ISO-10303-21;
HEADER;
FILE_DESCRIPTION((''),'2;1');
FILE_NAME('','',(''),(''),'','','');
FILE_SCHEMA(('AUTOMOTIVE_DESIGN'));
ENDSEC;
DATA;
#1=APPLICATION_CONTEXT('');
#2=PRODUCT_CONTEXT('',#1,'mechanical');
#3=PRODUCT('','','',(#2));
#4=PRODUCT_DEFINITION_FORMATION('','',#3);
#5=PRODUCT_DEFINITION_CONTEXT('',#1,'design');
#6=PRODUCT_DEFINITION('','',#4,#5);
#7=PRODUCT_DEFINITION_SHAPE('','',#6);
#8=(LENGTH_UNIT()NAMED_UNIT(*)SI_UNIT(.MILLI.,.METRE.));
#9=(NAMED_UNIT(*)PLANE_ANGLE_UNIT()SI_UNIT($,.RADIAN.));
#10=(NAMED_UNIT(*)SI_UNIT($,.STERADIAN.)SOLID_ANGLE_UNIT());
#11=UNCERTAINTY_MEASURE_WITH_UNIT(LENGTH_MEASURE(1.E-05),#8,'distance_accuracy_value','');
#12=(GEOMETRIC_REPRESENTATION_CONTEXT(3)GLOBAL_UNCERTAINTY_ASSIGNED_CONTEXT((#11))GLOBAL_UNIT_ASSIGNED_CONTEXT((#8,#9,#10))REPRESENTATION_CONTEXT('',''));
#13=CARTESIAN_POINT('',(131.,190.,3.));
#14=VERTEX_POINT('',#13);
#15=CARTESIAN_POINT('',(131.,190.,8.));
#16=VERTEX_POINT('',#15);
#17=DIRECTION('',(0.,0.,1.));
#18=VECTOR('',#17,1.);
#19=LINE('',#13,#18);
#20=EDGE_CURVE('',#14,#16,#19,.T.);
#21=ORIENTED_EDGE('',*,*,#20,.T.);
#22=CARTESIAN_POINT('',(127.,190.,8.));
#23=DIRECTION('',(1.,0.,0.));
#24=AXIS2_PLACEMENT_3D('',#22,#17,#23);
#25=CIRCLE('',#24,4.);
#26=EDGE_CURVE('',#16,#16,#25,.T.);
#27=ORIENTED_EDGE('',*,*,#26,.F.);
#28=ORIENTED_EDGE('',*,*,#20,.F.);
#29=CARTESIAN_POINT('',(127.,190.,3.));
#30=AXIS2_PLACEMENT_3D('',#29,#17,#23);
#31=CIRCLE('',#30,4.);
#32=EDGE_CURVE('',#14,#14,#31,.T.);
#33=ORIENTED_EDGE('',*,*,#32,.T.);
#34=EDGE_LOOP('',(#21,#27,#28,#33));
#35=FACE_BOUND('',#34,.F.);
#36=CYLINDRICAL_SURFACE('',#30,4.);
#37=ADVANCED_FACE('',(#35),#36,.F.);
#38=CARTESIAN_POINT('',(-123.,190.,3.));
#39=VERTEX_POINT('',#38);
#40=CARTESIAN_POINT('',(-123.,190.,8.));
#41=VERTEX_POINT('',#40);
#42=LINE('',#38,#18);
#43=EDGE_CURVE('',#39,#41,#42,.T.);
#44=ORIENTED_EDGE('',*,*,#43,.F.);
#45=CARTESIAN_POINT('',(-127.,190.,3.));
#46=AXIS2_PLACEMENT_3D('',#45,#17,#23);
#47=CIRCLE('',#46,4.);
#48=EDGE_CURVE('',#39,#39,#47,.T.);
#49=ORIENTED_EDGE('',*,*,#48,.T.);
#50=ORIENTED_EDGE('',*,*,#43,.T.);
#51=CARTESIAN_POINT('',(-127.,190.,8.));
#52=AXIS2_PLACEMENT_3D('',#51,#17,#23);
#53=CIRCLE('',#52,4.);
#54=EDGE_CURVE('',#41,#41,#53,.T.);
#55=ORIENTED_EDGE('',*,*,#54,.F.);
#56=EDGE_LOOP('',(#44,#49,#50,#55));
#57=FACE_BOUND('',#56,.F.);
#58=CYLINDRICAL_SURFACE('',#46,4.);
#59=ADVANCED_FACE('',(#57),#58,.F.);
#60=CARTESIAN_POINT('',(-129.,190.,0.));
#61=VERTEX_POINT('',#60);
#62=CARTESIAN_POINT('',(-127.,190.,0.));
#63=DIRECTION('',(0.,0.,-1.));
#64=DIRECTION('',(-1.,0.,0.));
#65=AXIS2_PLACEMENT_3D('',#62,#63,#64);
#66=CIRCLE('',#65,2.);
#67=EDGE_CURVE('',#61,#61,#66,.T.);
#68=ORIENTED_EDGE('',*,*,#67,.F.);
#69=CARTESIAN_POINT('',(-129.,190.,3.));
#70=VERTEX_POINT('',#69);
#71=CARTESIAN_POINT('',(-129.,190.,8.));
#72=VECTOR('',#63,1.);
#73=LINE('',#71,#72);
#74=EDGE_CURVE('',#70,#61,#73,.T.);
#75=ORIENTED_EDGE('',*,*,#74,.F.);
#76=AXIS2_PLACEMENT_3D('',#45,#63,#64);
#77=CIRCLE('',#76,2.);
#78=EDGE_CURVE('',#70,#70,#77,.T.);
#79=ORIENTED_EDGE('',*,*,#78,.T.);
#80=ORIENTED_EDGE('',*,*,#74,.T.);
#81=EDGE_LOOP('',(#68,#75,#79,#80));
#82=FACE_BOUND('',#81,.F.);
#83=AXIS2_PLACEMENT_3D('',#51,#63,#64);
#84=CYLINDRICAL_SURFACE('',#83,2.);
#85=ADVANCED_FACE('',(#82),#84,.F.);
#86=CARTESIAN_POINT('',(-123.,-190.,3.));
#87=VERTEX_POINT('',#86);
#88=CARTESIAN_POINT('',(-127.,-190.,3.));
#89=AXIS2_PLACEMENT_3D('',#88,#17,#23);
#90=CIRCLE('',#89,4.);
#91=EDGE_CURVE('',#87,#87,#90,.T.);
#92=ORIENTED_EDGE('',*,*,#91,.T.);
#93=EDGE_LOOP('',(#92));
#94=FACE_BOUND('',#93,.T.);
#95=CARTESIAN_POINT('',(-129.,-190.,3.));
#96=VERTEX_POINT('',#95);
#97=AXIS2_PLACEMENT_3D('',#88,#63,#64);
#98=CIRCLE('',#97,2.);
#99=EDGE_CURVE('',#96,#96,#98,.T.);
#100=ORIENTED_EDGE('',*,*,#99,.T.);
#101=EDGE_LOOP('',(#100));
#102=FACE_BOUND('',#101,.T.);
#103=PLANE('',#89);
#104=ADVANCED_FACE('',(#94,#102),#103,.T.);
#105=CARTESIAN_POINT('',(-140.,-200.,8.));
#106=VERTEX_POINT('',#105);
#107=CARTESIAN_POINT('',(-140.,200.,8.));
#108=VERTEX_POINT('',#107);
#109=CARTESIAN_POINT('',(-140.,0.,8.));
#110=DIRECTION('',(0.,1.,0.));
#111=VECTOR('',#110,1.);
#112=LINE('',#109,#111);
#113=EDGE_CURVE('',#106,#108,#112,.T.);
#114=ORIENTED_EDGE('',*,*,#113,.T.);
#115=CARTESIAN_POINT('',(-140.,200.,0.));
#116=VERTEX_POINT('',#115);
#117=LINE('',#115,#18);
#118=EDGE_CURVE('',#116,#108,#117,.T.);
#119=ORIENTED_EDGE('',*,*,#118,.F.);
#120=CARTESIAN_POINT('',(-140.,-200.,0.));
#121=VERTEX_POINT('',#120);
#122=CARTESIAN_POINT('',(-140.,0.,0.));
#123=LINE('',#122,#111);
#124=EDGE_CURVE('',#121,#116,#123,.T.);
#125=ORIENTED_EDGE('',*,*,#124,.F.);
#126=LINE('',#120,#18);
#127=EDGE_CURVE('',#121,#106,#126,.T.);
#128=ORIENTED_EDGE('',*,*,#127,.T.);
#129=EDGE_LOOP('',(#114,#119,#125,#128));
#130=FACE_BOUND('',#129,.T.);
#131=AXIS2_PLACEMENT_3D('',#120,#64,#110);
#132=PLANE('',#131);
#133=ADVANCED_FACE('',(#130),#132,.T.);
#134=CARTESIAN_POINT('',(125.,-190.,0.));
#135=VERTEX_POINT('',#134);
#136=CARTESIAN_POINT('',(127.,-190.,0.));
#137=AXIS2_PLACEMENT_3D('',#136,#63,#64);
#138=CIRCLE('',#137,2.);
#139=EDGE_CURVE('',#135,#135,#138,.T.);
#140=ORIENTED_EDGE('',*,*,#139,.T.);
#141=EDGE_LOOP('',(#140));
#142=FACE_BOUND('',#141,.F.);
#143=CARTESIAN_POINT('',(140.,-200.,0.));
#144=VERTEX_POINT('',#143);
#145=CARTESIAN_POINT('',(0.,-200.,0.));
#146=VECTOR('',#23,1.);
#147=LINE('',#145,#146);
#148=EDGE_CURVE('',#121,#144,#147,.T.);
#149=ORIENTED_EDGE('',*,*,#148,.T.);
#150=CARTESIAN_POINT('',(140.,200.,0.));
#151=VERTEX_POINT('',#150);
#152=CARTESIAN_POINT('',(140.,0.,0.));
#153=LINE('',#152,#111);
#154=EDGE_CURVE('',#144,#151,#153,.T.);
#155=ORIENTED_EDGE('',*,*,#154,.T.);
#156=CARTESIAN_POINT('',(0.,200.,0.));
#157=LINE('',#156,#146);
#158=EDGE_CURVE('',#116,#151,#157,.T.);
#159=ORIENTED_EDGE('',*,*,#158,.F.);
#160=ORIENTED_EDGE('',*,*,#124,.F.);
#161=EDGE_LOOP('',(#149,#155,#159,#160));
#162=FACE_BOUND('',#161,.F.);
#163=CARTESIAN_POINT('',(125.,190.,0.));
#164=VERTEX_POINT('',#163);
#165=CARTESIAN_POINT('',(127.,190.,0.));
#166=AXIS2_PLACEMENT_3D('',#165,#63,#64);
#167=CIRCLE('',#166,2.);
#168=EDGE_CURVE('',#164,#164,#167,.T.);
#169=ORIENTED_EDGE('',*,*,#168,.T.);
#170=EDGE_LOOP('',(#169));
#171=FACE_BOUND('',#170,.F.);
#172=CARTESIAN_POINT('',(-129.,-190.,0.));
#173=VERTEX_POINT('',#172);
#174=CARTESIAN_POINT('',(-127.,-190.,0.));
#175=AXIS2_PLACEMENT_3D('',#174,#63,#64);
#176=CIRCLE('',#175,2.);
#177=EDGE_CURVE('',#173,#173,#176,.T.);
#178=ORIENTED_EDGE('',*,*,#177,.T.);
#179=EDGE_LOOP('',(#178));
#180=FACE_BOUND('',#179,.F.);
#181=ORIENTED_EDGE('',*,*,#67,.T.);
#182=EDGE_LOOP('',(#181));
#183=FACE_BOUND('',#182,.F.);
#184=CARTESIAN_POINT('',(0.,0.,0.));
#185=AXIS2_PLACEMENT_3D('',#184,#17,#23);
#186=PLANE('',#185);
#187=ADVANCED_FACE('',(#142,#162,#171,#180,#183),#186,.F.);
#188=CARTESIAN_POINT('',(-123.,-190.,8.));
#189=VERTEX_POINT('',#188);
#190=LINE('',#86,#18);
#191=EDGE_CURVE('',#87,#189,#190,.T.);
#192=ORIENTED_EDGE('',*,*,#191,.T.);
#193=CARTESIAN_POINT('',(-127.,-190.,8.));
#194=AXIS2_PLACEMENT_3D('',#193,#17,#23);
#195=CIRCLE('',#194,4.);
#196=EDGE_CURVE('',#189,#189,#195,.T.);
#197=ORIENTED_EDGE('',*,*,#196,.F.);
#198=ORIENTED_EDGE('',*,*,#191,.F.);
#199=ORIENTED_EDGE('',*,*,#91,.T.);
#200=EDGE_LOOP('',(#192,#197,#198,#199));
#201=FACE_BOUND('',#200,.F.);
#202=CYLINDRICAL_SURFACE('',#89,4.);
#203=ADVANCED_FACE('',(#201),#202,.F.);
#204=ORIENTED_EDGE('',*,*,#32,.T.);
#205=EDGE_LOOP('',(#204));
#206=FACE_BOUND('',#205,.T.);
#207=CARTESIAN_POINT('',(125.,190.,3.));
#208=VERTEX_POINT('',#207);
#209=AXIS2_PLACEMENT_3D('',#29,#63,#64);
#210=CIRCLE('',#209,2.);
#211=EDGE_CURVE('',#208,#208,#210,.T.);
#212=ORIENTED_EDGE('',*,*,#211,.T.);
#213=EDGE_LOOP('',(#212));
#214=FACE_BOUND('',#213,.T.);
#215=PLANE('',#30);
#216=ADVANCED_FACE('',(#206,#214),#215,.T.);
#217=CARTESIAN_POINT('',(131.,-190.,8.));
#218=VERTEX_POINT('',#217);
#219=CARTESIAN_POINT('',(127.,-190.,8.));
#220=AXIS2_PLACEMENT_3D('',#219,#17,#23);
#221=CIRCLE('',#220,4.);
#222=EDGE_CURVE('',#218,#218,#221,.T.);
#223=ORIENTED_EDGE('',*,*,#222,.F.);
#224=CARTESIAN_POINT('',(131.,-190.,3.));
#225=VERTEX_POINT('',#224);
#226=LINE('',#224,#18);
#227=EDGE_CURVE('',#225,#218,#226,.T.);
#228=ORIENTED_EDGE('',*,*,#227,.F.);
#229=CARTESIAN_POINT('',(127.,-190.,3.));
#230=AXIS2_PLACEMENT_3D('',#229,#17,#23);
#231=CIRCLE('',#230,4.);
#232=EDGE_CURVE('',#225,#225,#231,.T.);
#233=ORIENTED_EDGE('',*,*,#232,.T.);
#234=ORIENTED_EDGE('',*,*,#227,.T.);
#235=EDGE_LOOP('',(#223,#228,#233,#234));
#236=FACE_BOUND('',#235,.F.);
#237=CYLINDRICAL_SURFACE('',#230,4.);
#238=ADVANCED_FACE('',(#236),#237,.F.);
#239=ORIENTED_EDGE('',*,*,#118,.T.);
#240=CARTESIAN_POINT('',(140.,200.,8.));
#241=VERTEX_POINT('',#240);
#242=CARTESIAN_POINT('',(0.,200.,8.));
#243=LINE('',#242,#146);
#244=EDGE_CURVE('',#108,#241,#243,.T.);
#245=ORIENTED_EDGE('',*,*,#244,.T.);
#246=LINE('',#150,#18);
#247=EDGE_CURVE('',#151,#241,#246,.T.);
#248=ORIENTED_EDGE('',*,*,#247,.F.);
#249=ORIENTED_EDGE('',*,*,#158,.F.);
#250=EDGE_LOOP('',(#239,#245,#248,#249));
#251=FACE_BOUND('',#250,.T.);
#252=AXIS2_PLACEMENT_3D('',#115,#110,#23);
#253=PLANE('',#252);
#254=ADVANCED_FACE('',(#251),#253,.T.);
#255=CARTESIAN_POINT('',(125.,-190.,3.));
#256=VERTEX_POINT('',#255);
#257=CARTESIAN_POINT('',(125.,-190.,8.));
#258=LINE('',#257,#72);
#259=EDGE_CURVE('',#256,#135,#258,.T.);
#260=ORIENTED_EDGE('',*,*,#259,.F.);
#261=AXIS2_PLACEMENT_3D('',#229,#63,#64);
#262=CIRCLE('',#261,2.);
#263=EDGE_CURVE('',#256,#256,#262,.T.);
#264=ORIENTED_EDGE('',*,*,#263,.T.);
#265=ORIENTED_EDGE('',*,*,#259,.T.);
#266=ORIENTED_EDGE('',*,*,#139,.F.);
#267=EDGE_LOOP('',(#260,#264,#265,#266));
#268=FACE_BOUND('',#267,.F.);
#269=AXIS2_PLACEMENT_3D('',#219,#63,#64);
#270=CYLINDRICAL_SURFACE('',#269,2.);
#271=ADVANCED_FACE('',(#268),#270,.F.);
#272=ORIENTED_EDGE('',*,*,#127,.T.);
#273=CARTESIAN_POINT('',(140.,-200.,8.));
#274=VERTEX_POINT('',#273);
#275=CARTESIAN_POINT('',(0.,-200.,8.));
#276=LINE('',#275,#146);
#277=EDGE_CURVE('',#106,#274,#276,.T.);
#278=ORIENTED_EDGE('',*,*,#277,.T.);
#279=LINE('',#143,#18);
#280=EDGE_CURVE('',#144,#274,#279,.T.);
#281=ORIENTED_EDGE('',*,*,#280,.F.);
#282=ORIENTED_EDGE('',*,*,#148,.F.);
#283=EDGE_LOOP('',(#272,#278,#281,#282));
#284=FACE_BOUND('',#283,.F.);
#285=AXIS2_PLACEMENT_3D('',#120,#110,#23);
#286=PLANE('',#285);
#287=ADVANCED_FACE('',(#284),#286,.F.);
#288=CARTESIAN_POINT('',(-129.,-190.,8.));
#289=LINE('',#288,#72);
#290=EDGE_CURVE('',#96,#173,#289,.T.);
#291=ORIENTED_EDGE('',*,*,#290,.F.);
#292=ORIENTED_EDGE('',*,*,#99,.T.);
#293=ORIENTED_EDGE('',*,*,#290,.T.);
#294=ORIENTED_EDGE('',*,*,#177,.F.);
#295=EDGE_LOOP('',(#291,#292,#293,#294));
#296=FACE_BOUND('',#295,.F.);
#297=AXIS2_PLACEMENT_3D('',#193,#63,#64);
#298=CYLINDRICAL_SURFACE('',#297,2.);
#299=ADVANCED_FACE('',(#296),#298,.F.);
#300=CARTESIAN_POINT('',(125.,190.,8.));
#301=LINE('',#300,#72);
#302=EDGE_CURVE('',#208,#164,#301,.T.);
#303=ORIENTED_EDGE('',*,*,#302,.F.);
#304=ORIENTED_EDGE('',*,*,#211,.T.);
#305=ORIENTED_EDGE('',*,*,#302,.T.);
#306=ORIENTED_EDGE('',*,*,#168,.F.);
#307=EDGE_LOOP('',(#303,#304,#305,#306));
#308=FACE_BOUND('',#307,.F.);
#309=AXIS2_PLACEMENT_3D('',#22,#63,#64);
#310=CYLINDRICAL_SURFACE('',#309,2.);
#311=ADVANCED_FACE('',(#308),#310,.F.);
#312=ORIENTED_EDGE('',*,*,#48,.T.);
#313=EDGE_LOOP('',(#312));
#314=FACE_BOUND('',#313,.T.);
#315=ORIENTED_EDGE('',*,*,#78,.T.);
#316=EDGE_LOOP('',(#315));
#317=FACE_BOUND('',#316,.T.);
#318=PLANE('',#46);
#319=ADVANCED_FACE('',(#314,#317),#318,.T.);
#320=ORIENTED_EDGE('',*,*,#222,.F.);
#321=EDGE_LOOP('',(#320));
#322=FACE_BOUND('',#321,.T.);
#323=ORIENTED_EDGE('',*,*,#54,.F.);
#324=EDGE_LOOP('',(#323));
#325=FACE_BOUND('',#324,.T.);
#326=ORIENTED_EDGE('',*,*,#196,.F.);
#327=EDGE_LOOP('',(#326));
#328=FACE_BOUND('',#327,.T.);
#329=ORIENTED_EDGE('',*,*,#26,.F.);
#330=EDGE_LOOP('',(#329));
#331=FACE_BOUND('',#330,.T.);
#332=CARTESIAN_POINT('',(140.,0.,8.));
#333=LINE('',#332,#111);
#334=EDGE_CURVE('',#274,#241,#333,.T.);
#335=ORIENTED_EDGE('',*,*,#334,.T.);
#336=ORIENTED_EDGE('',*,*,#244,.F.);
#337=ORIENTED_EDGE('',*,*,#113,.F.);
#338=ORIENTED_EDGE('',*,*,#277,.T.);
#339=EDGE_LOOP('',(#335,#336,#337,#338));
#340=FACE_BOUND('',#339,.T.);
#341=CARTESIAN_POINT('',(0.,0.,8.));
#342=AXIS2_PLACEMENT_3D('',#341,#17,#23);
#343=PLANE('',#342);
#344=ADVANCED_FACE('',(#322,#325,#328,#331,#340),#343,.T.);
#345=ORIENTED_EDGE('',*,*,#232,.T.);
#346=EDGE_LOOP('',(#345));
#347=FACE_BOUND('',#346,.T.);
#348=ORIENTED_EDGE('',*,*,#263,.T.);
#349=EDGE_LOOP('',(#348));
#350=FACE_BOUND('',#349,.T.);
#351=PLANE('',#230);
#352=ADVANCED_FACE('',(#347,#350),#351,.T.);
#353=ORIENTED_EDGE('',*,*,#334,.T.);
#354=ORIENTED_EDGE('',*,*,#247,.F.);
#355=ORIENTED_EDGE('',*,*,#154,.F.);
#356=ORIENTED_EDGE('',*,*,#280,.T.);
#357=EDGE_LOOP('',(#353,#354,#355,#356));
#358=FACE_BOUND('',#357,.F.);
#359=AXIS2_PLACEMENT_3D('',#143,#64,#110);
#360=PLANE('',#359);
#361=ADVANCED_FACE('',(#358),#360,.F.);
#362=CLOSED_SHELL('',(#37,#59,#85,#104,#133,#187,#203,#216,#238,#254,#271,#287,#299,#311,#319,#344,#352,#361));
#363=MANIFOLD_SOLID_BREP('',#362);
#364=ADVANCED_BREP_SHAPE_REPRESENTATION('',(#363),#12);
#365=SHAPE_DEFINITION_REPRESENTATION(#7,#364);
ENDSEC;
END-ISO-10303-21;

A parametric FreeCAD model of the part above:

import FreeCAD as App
import Part
import Sketcher
Q = App.Units.Quantity


def add_polygon(sketch, points):
    """Adds a closed chain of lines whose ends are joined by coincident constraints."""
    first, n = sketch.GeometryCount, len(points)
    for a, b in zip(points, points[1:] + points[:1]):
        sketch.addGeometry(Part.LineSegment(App.Vector(*a, 0), App.Vector(*b, 0)), False)
    for i in range(n):
        sketch.addConstraint(Sketcher.Constraint("Coincident", first + i, 2, first + (i + 1) % n, 1))

doc = App.newDocument("Part")
body = doc.addObject("PartDesign::Body", "Body")

# Sketch on XY plane
sketch1 = body.newObject("Sketcher::SketchObject", "Sketch")
sketch1.AttachmentSupport = (doc.getObject("XY_Plane"), [""])
sketch1.MapMode = "FlatFace"
add_polygon(sketch1, [(-140, 200), (-140, -200), (140, -200), (140, 200)])  # lines 0-3
sketch1.addConstraint(Sketcher.Constraint("Vertical", 0))
sketch1.addConstraint(Sketcher.Constraint("Horizontal", 1))
sketch1.addConstraint(Sketcher.Constraint("Vertical", 2))
sketch1.addConstraint(Sketcher.Constraint("Horizontal", 3))
sketch1.addConstraint(Sketcher.Constraint("Symmetric", 0, 2, 2, 2, -1, 1))
sketch1.addConstraint(Sketcher.Constraint("DistanceX", 1, 1, 1, 2, Q("280 mm")))
sketch1.addConstraint(Sketcher.Constraint("DistanceY", 0, 2, 0, 1, Q("400 mm")))
pad1 = body.newObject("PartDesign::Pad", "Pad")
pad1.Profile = sketch1
pad1.Length = 8

# Sketch on XY plane
sketch2 = body.newObject("Sketcher::SketchObject", "Sketch001")
sketch2.AttachmentSupport = (doc.getObject("XY_Plane"), [""])
sketch2.MapMode = "FlatFace"
sketch2.AttachmentOffset = App.Placement(App.Vector(0, 0, 8), App.Rotation())
sketch2.addGeometry(Part.Circle(App.Vector(-127, 190, 0), App.Vector(0, 0, 1), 2), False)
sketch2.addGeometry(Part.Circle(App.Vector(127, 190, 0), App.Vector(0, 0, 1), 2), False)
sketch2.addGeometry(Part.Circle(App.Vector(-127, -190, 0), App.Vector(0, 0, 1), 2), False)
sketch2.addGeometry(Part.Circle(App.Vector(127, -190, 0), App.Vector(0, 0, 1), 2), False)
sketch2.addConstraint(Sketcher.Constraint("Equal", 0, 1))
sketch2.addConstraint(Sketcher.Constraint("Equal", 1, 2))
sketch2.addConstraint(Sketcher.Constraint("Equal", 2, 3))
sketch2.addConstraint(Sketcher.Constraint("Symmetric", 1, 3, 2, 3, -1, 1))
sketch2.addConstraint(Sketcher.Constraint("Symmetric", 0, 3, 3, 3, -1, 1))
sketch2.addConstraint(Sketcher.Constraint("Symmetric", 0, 3, 1, 3, -2))
sketch2.addConstraint(Sketcher.Constraint("Diameter", 0, Q("4 mm")))
sketch2.addConstraint(Sketcher.Constraint("DistanceX", 0, 3, -1, 1, Q("127 mm")))
sketch2.addConstraint(Sketcher.Constraint("DistanceY", -1, 1, 0, 3, Q("190 mm")))
doc.recompute()
hole = body.newObject("PartDesign::Hole", "Hole")
hole.Profile = sketch2
hole.ThreadType = "None"
hole.Diameter = 4
hole.DepthType = "ThroughAll"
hole.HoleCutType = "Counterbore"
hole.HoleCutDiameter = 8
hole.HoleCutDepth = 5

doc.recompute()
